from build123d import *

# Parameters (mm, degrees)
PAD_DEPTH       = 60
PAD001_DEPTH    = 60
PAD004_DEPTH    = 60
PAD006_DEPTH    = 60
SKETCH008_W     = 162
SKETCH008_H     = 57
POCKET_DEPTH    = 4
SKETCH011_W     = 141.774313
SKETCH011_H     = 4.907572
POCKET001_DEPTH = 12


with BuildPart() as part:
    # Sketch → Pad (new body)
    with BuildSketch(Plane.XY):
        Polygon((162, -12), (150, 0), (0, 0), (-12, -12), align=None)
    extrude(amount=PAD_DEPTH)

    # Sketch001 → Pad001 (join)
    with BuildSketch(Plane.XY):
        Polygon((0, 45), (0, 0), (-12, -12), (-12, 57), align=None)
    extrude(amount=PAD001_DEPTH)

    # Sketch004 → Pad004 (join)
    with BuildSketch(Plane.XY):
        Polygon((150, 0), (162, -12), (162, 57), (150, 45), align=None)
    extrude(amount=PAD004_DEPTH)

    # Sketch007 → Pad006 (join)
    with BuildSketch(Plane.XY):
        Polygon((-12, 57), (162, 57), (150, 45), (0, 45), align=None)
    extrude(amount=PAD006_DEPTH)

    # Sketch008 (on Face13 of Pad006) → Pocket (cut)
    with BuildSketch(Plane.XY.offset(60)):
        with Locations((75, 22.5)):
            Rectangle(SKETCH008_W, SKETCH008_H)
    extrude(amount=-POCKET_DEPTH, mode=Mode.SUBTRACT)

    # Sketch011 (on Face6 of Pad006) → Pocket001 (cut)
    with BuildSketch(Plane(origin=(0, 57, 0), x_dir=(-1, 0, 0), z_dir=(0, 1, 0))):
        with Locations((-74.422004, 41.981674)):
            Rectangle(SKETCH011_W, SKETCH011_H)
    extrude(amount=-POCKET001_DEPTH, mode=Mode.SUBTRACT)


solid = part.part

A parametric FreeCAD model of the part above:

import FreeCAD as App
import Part
import Sketcher

V = App.Vector


def add_polygon(sketch, points):
    """Adds a closed chain of lines whose ends are joined by coincident constraints."""
    first, n = sketch.GeometryCount, len(points)
    for a, b in zip(points, points[1:] + points[:1]):
        sketch.addGeometry(Part.LineSegment(App.Vector(*a, 0), App.Vector(*b, 0)), False)
    for i in range(n):
        sketch.addConstraint(Sketcher.Constraint("Coincident", first + i, 2, first + (i + 1) % n, 1))

doc = App.newDocument("Part")
body = doc.addObject("PartDesign::Body", "Body")

# Sketch on XY plane
sketch1 = body.newObject("Sketcher::SketchObject", "Sketch")
sketch1.AttachmentSupport = (doc.getObject("XY_Plane"), [""])
sketch1.MapMode = "FlatFace"
add_polygon(sketch1, [(162, -12), (150, 0), (0, 0), (-12, -12)])  # lines 0-3
sketch1.addConstraint([
    Sketcher.Constraint("Horizontal", 1),
    Sketcher.Constraint("Horizontal", 3),
    Sketcher.Constraint("Coincident", 1, 2, -1, 1),
    Sketcher.Constraint("Perpendicular", 0, 2),
    Sketcher.Constraint("Equal", 0, 2),
    Sketcher.Constraint("DistanceX", 1, 2, 1, 1, 150.0),
    Sketcher.Constraint("DistanceX", 3, 1, 3, 2, 174.0),
])
pad1 = body.newObject("PartDesign::Pad", "Pad")
pad1.Profile = sketch1
pad1.Length = 60

# Sketch on XY plane
sketch2 = body.newObject("Sketcher::SketchObject", "Sketch001")
sketch2.AttachmentSupport = (doc.getObject("XY_Plane"), [""])
sketch2.MapMode = "FlatFace"
add_polygon(sketch2, [(0, 0), (0, 45), (-12, 57), (-12, -12)])  # lines 0-3
sketch2.addConstraint([
    Sketcher.Constraint("Vertical", 0),
    Sketcher.Constraint("Vertical", 2),
    Sketcher.Constraint("Coincident", 3, 2, -1, 1),
    Sketcher.Constraint("Perpendicular", 1, 3),
    Sketcher.Constraint("Equal", 1, 3),
    Sketcher.Constraint("DistanceY", 0, 1, 0, 2, 45.0),
    Sketcher.Constraint("DistanceY", 2, 2, 2, 1, 69.0),
])
pad2 = body.newObject("PartDesign::Pad", "Pad001")
pad2.Profile = sketch2
pad2.Length = 60

# Sketch on XY plane
sketch3 = body.newObject("Sketcher::SketchObject", "Sketch002")
sketch3.AttachmentSupport = (doc.getObject("XY_Plane"), [""])
sketch3.MapMode = "FlatFace"
add_polygon(sketch3, [(150, 0), (162, -12), (162, 57), (150, 45)])  # lines 0-3
sketch3.addConstraint([
    Sketcher.Constraint("Vertical", 1),
    Sketcher.Constraint("Vertical", 3),
    Sketcher.Constraint("PointOnObject", 3, 2, -1),
    Sketcher.Constraint("Perpendicular", 0, 2),
    Sketcher.Constraint("Equal", 0, 2),
    Sketcher.Constraint("DistanceY", 1, 1, 1, 2, 69.0),
    Sketcher.Constraint("DistanceY", 3, 2, 3, 1, 45.0),
    Sketcher.Constraint("DistanceX", -1, 1, 0, 2, 162.0),
])
pad3 = body.newObject("PartDesign::Pad", "Pad002")
pad3.Profile = sketch3
pad3.Length = 60

# Sketch on XY plane
sketch4 = body.newObject("Sketcher::SketchObject", "Sketch003")
sketch4.AttachmentSupport = (doc.getObject("XY_Plane"), [""])
sketch4.MapMode = "FlatFace"
add_polygon(sketch4, [(162, 57), (-12, 57), (0, 45), (150, 45)])  # lines 0-3
sketch4.addConstraint([
    Sketcher.Constraint("Horizontal", 0),
    Sketcher.Constraint("Horizontal", 2),
    Sketcher.Constraint("PointOnObject", 1, 2, -2),
    Sketcher.Constraint("Perpendicular", 1, 3),
    Sketcher.Constraint("Equal", 1, 3),
    Sketcher.Constraint("DistanceX", 0, 2, 0, 1, 174.0),
    Sketcher.Constraint("DistanceX", 2, 1, 2, 2, 150.0),
    Sketcher.Constraint("DistanceY", -1, 1, 0, 2, 57.0),
])
pad4 = body.newObject("PartDesign::Pad", "Pad003")
pad4.Profile = sketch4
pad4.Length = 60

# Sketch on XY plane
sketch5 = body.newObject("Sketcher::SketchObject", "Sketch004")
sketch5.AttachmentSupport = (doc.getObject("XY_Plane"), [""])
sketch5.MapMode = "FlatFace"
sketch5.AttachmentOffset = App.Placement(V(0, 0, 60), App.Rotation())
add_polygon(sketch5, [(-6, 51), (-6, -6), (156, -6), (156, 51)])  # lines 0-3
sketch5.addConstraint([
    Sketcher.Constraint("Vertical", 0),
    Sketcher.Constraint("Horizontal", 1),
    Sketcher.Constraint("Vertical", 2),
    Sketcher.Constraint("Horizontal", 3),
    Sketcher.Constraint("DistanceX", 1, 1, 1, 2, 162.0),
    Sketcher.Constraint("DistanceY", 0, 2, 0, 1, 57.0),
    Sketcher.Constraint("DistanceX", 0, 2, -1, 1, 6.0),
    Sketcher.Constraint("DistanceY", 0, 2, -1, 1, 6.0),
])
pocket1 = body.newObject("PartDesign::Pocket", "Pocket")
pocket1.Profile = sketch5
pocket1.Length = 4

# Sketch on XZ plane
sketch6 = body.newObject("Sketcher::SketchObject", "Sketch005")
sketch6.AttachmentSupport = (doc.getObject("XZ_Plane"), [""])
sketch6.MapMode = "FlatFace"
sketch6.AttachmentOffset = App.Placement(V(0, 0, -57), App.Rotation())
add_polygon(sketch6, [(145.30916, 44.43546), (145.30916, 39.527888), (3.534848, 39.527888), (3.534848, 44.43546)])  # lines 0-3
sketch6.addConstraint([
    Sketcher.Constraint("Vertical", 0),
    Sketcher.Constraint("Horizontal", 1),
    Sketcher.Constraint("Vertical", 2),
    Sketcher.Constraint("Horizontal", 3),
    Sketcher.Constraint("DistanceX", 1, 2, 1, 1, 141.774313),
    Sketcher.Constraint("DistanceY", 0, 2, 0, 1, 4.907572),
    Sketcher.Constraint("DistanceX", -1, 1, 0, 2, 145.30916),
    Sketcher.Constraint("DistanceY", -1, 1, 2, 2, 44.43546),
])
pocket2 = body.newObject("PartDesign::Pocket", "Pocket001")
pocket2.Profile = sketch6
pocket2.Length = 12
pocket2.Reversed = True

doc.recompute()
